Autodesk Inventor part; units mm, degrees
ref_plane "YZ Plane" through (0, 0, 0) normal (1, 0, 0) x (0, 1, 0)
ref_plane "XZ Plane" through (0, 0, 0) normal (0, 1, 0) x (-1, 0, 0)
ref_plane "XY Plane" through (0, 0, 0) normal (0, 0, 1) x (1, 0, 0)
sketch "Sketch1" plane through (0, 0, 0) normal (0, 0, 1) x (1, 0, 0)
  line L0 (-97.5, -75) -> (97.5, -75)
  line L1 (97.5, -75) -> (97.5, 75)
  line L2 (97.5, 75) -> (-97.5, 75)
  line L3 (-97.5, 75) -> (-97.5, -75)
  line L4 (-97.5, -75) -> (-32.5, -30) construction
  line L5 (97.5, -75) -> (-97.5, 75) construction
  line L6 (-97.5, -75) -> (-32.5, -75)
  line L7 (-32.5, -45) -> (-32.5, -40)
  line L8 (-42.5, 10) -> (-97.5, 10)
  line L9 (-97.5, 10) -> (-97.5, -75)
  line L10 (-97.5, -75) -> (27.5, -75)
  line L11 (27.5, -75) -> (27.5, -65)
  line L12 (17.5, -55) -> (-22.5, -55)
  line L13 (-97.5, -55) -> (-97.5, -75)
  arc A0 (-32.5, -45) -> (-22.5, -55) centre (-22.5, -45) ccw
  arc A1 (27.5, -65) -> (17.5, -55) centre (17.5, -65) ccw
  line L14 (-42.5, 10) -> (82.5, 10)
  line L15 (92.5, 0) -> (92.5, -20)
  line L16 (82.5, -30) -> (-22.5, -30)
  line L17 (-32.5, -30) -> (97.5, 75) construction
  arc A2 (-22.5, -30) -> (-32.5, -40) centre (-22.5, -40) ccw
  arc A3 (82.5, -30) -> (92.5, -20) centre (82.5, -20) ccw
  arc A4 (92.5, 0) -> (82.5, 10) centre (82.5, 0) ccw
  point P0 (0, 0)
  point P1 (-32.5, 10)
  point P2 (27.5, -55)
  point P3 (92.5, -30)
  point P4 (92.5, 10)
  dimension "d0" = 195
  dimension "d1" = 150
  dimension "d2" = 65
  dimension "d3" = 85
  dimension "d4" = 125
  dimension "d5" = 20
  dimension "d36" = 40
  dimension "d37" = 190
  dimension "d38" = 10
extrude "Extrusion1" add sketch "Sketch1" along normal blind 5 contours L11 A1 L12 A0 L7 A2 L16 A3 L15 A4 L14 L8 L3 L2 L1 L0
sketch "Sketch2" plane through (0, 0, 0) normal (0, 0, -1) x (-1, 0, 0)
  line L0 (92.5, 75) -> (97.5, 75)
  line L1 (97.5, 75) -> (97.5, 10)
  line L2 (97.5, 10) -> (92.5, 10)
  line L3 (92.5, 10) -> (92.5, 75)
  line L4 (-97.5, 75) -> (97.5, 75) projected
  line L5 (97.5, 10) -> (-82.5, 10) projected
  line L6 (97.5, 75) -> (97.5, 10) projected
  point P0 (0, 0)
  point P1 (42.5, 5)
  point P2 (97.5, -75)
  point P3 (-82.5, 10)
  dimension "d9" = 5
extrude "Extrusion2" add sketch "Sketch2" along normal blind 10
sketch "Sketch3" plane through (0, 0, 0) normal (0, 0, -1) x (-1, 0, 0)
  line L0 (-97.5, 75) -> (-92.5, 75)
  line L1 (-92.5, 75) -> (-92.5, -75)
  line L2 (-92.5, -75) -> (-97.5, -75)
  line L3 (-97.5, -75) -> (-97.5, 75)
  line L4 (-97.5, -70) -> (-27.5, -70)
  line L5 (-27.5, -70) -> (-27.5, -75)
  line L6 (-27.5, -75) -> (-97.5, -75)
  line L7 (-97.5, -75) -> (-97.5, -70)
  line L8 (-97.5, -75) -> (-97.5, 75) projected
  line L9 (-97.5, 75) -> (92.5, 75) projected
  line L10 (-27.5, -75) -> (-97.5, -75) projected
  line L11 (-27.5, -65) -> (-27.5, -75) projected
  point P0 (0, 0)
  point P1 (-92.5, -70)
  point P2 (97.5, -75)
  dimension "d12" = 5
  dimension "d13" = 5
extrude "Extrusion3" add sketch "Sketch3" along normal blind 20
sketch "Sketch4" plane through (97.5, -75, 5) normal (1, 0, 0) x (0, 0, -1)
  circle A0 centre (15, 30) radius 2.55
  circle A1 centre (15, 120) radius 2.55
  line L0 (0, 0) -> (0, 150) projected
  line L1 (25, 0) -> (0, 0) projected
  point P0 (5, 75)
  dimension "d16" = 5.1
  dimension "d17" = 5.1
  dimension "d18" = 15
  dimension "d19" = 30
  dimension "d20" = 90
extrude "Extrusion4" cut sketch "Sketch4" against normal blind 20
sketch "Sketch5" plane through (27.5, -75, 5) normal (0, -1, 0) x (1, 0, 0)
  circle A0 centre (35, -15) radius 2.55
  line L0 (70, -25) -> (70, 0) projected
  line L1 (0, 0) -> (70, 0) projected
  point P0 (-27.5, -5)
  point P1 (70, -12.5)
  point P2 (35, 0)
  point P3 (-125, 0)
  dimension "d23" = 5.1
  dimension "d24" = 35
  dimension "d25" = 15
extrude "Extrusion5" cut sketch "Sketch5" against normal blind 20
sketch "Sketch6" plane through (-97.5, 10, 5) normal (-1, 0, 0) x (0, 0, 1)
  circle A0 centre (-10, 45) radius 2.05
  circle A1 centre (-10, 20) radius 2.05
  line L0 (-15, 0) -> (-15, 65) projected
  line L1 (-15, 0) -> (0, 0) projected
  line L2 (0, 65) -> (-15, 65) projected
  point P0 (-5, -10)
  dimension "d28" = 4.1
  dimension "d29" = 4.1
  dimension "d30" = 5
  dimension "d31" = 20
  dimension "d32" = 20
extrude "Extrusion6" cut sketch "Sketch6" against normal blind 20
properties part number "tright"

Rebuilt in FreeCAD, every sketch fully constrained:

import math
import FreeCAD as App
import Part
import Sketcher
from FreeCAD import Vector


def add_polygon(sketch, points):
    """Adds a closed chain of lines whose ends are joined by coincident constraints."""
    first, n = sketch.GeometryCount, len(points)
    for a, b in zip(points, points[1:] + points[:1]):
        sketch.addGeometry(Part.LineSegment(App.Vector(*a, 0), App.Vector(*b, 0)), False)
    for i in range(n):
        sketch.addConstraint(Sketcher.Constraint("Coincident", first + i, 2, first + (i + 1) % n, 1))

doc = App.newDocument("Part")
params = doc.addObject("Spreadsheet::Sheet", "Params")
for row, (alias, value) in enumerate([
    ("sketch1_radius", "10 mm"),
    ("sketch1_width", "195 mm"),
    ("sketch1_width2", "40 mm"),
    ("sketch1_height", "10 mm"),
    ("sketch1_height2", "150 mm"),
    ("pad1_length", "5 mm"),
    ("sketch2_width", "5 mm"),
    ("sketch2_height", "65 mm"),
    ("pad2_length", "10 mm"),
    ("sketch3_width", "5 mm"),
    ("sketch3_width2", "70 mm"),
    ("sketch3_height", "150 mm"),
    ("pad3_length", "20 mm"),
    ("sketch4_diameter", "5.1 mm"),
    ("pocket1_length", "20 mm"),
    ("sketch5_diameter", "5.1 mm"),
    ("pocket2_length", "20 mm"),
    ("sketch6_diameter", "4.1 mm"),
    ("pocket3_length", "20 mm"),
], start=1):
    params.set(f"A{row}", alias)
    params.set(f"B{row}", "=" + value)
    params.setAlias(f"B{row}", alias)

body = doc.addObject("PartDesign::Body", "Body")

sketch1 = body.newObject("Sketcher::SketchObject", "Sketch")
sketch1.AttachmentSupport = (doc.getObject("XY_Plane"), [""])
sketch1.MapMode = "FlatFace"
sketch1.addGeometry(Part.LineSegment(Vector(27.5, -65, 0), Vector(27.5, -75, 0)), False)
sketch1.addGeometry(Part.LineSegment(Vector(27.5, -75, 0), Vector(97.5, -75, 0)), False)
sketch1.addGeometry(Part.LineSegment(Vector(97.5, -75, 0), Vector(97.5, 75, 0)), False)
sketch1.addGeometry(Part.LineSegment(Vector(97.5, 75, 0), Vector(-97.5, 75, 0)), False)
sketch1.addGeometry(Part.LineSegment(Vector(-97.5, 75, 0), Vector(-97.5, 10, 0)), False)
sketch1.addGeometry(Part.LineSegment(Vector(-97.5, 10, 0), Vector(82.5, 10, 0)), False)
sketch1.addGeometry(Part.ArcOfCircle(Part.Circle(Vector(82.5, 0, 0), Vector(0, 0, 1), 10), math.radians(0), math.radians(90)), False)
sketch1.addGeometry(Part.LineSegment(Vector(92.5, 0, 0), Vector(92.5, -20, 0)), False)
sketch1.addGeometry(Part.ArcOfCircle(Part.Circle(Vector(82.5, -20, 0), Vector(0, 0, 1), 10), math.radians(-90), math.radians(0)), False)
sketch1.addGeometry(Part.LineSegment(Vector(82.5, -30, 0), Vector(-22.5, -30, 0)), False)
sketch1.addGeometry(Part.ArcOfCircle(Part.Circle(Vector(-22.5, -40, 0), Vector(0, 0, 1), 10), math.radians(90), math.radians(180)), False)
sketch1.addGeometry(Part.LineSegment(Vector(-32.5, -40, 0), Vector(-32.5, -45, 0)), False)
sketch1.addGeometry(Part.ArcOfCircle(Part.Circle(Vector(-22.5, -45, 0), Vector(0, 0, 1), 10), math.radians(180), math.radians(270)), False)
sketch1.addGeometry(Part.LineSegment(Vector(-22.5, -55, 0), Vector(17.5, -55, 0)), False)
sketch1.addGeometry(Part.ArcOfCircle(Part.Circle(Vector(17.5, -65, 0), Vector(0, 0, 1), 10), math.radians(0), math.radians(90)), False)
sketch1.addConstraint(Sketcher.Constraint("Coincident", 0, 2, 1, 1))
sketch1.addConstraint(Sketcher.Constraint("Coincident", 1, 2, 2, 1))
sketch1.addConstraint(Sketcher.Constraint("Coincident", 2, 2, 3, 1))
sketch1.addConstraint(Sketcher.Constraint("Coincident", 3, 2, 4, 1))
sketch1.addConstraint(Sketcher.Constraint("Coincident", 4, 2, 5, 1))
sketch1.addConstraint(Sketcher.Constraint("Tangent", 5, 2, 6, 2))
sketch1.addConstraint(Sketcher.Constraint("Tangent", 6, 1, 7, 1))
sketch1.addConstraint(Sketcher.Constraint("Tangent", 7, 2, 8, 2))
sketch1.addConstraint(Sketcher.Constraint("Tangent", 8, 1, 9, 1))
sketch1.addConstraint(Sketcher.Constraint("Tangent", 9, 2, 10, 1))
sketch1.addConstraint(Sketcher.Constraint("Tangent", 10, 2, 11, 1))
sketch1.addConstraint(Sketcher.Constraint("Tangent", 11, 2, 12, 1))
sketch1.addConstraint(Sketcher.Constraint("Tangent", 12, 2, 13, 1))
sketch1.addConstraint(Sketcher.Constraint("Tangent", 13, 2, 14, 2))
sketch1.addConstraint(Sketcher.Constraint("Tangent", 14, 1, 0, 1))
sketch1.addConstraint(Sketcher.Constraint("Vertical", 0))
sketch1.addConstraint(Sketcher.Constraint("Horizontal", 1))
sketch1.addConstraint(Sketcher.Constraint("Vertical", 2))
sketch1.addConstraint(Sketcher.Constraint("Horizontal", 3))
sketch1.addConstraint(Sketcher.Constraint("Vertical", 4))
sketch1.addConstraint(Sketcher.Constraint("Horizontal", 5))
sketch1.addConstraint(Sketcher.Constraint("Vertical", 7))
sketch1.addConstraint(Sketcher.Constraint("Horizontal", 9))
sketch1.addConstraint(Sketcher.Constraint("Vertical", 11))
sketch1.addConstraint(Sketcher.Constraint("Horizontal", 13))
sketch1.addConstraint(Sketcher.Constraint("Equal", 6, 8))
sketch1.addConstraint(Sketcher.Constraint("Equal", 8, 10))
sketch1.addConstraint(Sketcher.Constraint("Equal", 10, 12))
sketch1.addConstraint(Sketcher.Constraint("Equal", 12, 14))
sketch1.addConstraint(Sketcher.Constraint("Symmetric", 1, 2, 3, 2, -1, 1))
sketch1.addConstraint(Sketcher.Constraint("PointOnObject", 6, 3, -1))
sketch1.addConstraint(Sketcher.Constraint("Radius", 6, 10.0))
sketch1.addConstraint(Sketcher.Constraint("DistanceX", 3, 2, 3, 1, 195.0))
sketch1.addConstraint(Sketcher.Constraint("DistanceX", 13, 1, 13, 2, 40.0))
sketch1.addConstraint(Sketcher.Constraint("DistanceY", 0, 2, 0, 1, 10.0))
sketch1.addConstraint(Sketcher.Constraint("DistanceY", 2, 1, 2, 2, 150.0))
sketch1.addConstraint(Sketcher.Constraint("DistanceY", 7, 2, 7, 1, 20.0))
sketch1.addConstraint(Sketcher.Constraint("DistanceX", 14, 3, 8, 3, 65.0))
sketch1.addConstraint(Sketcher.Constraint("DistanceX", 4, 2, 0, 2, 125.0))
sketch1.setExpression("Constraints[31]", "Params.sketch1_radius")
sketch1.setExpression("Constraints[32]", "Params.sketch1_width")
sketch1.setExpression("Constraints[33]", "Params.sketch1_width2")
sketch1.setExpression("Constraints[34]", "Params.sketch1_height")
sketch1.setExpression("Constraints[35]", "Params.sketch1_height2")
pad1 = body.newObject("PartDesign::Pad", "Pad")
pad1.Profile = sketch1
pad1.setExpression("Length", "Params.pad1_length")

sketch2 = body.newObject("Sketcher::SketchObject", "Sketch001")
sketch2.AttachmentSupport = (doc.getObject("XY_Plane"), [""])
sketch2.MapMode = "FlatFace"
add_polygon(sketch2, [(-97.5, 75), (-92.5, 75), (-92.5, 10), (-97.5, 10)])
sketch2.addConstraint(Sketcher.Constraint("Horizontal", 0))
sketch2.addConstraint(Sketcher.Constraint("Vertical", 1))
sketch2.addConstraint(Sketcher.Constraint("Horizontal", 2))
sketch2.addConstraint(Sketcher.Constraint("Vertical", 3))
sketch2.addConstraint(Sketcher.Constraint("DistanceX", 0, 1, 0, 2, 5.0))
sketch2.addConstraint(Sketcher.Constraint("DistanceY", 1, 2, 1, 1, 65.0))
sketch2.addConstraint(Sketcher.Constraint("DistanceY", -1, 1, 0, 2, 75.0))
sketch2.addConstraint(Sketcher.Constraint("DistanceX", 0, 2, -1, 1, 92.5))
sketch2.setExpression("Constraints[8]", "Params.sketch2_width")
sketch2.setExpression("Constraints[9]", "Params.sketch2_height")
pad2 = body.newObject("PartDesign::Pad", "Pad001")
pad2.Profile = sketch2
pad2.setExpression("Length", "Params.pad2_length")
pad2.Reversed = True

sketch3 = body.newObject("Sketcher::SketchObject", "Sketch002")
sketch3.AttachmentSupport = (doc.getObject("XY_Plane"), [""])
sketch3.MapMode = "FlatFace"
add_polygon(sketch3, [(92.5, 75), (97.5, 75), (97.5, -75), (27.5, -75), (27.5, -70), (92.5, -70)])
sketch3.addConstraint(Sketcher.Constraint("Horizontal", 0))
sketch3.addConstraint(Sketcher.Constraint("Vertical", 1))
sketch3.addConstraint(Sketcher.Constraint("Horizontal", 2))
sketch3.addConstraint(Sketcher.Constraint("Vertical", 3))
sketch3.addConstraint(Sketcher.Constraint("Horizontal", 4))
sketch3.addConstraint(Sketcher.Constraint("Vertical", 5))
sketch3.addConstraint(Sketcher.Constraint("Equal", 0, 3))
sketch3.addConstraint(Sketcher.Constraint("DistanceX", 0, 1, 0, 2, 5.0))
sketch3.addConstraint(Sketcher.Constraint("DistanceX", 2, 2, 2, 1, 70.0))
sketch3.addConstraint(Sketcher.Constraint("DistanceY", 1, 2, 1, 1, 150.0))
sketch3.addConstraint(Sketcher.Constraint("DistanceY", -1, 1, 0, 2, 75.0))
sketch3.addConstraint(Sketcher.Constraint("DistanceX", -1, 1, 0, 2, 97.5))
sketch3.setExpression("Constraints[13]", "Params.sketch3_width")
sketch3.setExpression("Constraints[14]", "Params.sketch3_width2")
sketch3.setExpression("Constraints[15]", "Params.sketch3_height")
pad3 = body.newObject("PartDesign::Pad", "Pad002")
pad3.Profile = sketch3
pad3.setExpression("Length", "Params.pad3_length")
pad3.Reversed = True

sketch4 = body.newObject("Sketcher::SketchObject", "Sketch003")
sketch4.AttachmentSupport = (doc.getObject("YZ_Plane"), [""])
sketch4.MapMode = "FlatFace"
sketch4.AttachmentOffset = App.Placement(Vector(0, 0, 97.5), App.Rotation())
sketch4.addGeometry(Part.Circle(Vector(-45, -10, 0), Vector(0, 0, 1), 2.55), False)
sketch4.addGeometry(Part.Circle(Vector(45, -10, 0), Vector(0, 0, 1), 2.55), False)
sketch4.addConstraint(Sketcher.Constraint("Equal", 0, 1))
sketch4.addConstraint(Sketcher.Constraint("Symmetric", 0, 3, 1, 3, -2))
sketch4.addConstraint(Sketcher.Constraint("Diameter", 0, 5.1))
sketch4.addConstraint(Sketcher.Constraint("DistanceX", 0, 3, 1, 3, 90.0))
sketch4.addConstraint(Sketcher.Constraint("DistanceY", 0, 3, -1, 1, 10.0))
sketch4.setExpression("Constraints[2]", "Params.sketch4_diameter")
pocket1 = body.newObject("PartDesign::Pocket", "Pocket")
pocket1.Profile = sketch4
pocket1.setExpression("Length", "Params.pocket1_length")

sketch5 = body.newObject("Sketcher::SketchObject", "Sketch004")
sketch5.AttachmentSupport = (doc.getObject("XZ_Plane"), [""])
sketch5.MapMode = "FlatFace"
sketch5.AttachmentOffset = App.Placement(Vector(0, 0, 75), App.Rotation())
sketch5.addGeometry(Part.Circle(Vector(62.5, -10, 0), Vector(0, 0, 1), 2.55), False)
sketch5.addConstraint(Sketcher.Constraint("Diameter", 0, 5.1))
sketch5.addConstraint(Sketcher.Constraint("DistanceY", 0, 3, -1, 1, 10.0))
sketch5.addConstraint(Sketcher.Constraint("DistanceX", -1, 1, 0, 3, 62.5))
sketch5.setExpression("Constraints[0]", "Params.sketch5_diameter")
pocket2 = body.newObject("PartDesign::Pocket", "Pocket001")
pocket2.Profile = sketch5
pocket2.setExpression("Length", "Params.pocket2_length")

sketch6 = body.newObject("Sketcher::SketchObject", "Sketch005")
sketch6.AttachmentSupport = (doc.getObject("YZ_Plane"), [""])
sketch6.MapMode = "FlatFace"
sketch6.AttachmentOffset = App.Placement(Vector(0, 0, -97.5), App.Rotation())
sketch6.addGeometry(Part.Circle(Vector(55, -5, 0), Vector(0, 0, 1), 2.05), False)
sketch6.addGeometry(Part.Circle(Vector(30, -5, 0), Vector(0, 0, 1), 2.05), False)
sketch6.addConstraint(Sketcher.Constraint("Equal", 0, 1))
sketch6.addConstraint(Sketcher.Constraint("Horizontal", 0, 3, 1, 3))
sketch6.addConstraint(Sketcher.Constraint("Diameter", 0, 4.1))
sketch6.addConstraint(Sketcher.Constraint("DistanceY", 0, 3, -1, 1, 5.0))
sketch6.addConstraint(Sketcher.Constraint("DistanceX", -1, 1, 0, 3, 55.0))
sketch6.addConstraint(Sketcher.Constraint("DistanceX", -1, 1, 1, 3, 30.0))
sketch6.setExpression("Constraints[2]", "Params.sketch6_diameter")
pocket3 = body.newObject("PartDesign::Pocket", "Pocket002")
pocket3.Profile = sketch6
pocket3.setExpression("Length", "Params.pocket3_length")
pocket3.Reversed = True

doc.recompute()
